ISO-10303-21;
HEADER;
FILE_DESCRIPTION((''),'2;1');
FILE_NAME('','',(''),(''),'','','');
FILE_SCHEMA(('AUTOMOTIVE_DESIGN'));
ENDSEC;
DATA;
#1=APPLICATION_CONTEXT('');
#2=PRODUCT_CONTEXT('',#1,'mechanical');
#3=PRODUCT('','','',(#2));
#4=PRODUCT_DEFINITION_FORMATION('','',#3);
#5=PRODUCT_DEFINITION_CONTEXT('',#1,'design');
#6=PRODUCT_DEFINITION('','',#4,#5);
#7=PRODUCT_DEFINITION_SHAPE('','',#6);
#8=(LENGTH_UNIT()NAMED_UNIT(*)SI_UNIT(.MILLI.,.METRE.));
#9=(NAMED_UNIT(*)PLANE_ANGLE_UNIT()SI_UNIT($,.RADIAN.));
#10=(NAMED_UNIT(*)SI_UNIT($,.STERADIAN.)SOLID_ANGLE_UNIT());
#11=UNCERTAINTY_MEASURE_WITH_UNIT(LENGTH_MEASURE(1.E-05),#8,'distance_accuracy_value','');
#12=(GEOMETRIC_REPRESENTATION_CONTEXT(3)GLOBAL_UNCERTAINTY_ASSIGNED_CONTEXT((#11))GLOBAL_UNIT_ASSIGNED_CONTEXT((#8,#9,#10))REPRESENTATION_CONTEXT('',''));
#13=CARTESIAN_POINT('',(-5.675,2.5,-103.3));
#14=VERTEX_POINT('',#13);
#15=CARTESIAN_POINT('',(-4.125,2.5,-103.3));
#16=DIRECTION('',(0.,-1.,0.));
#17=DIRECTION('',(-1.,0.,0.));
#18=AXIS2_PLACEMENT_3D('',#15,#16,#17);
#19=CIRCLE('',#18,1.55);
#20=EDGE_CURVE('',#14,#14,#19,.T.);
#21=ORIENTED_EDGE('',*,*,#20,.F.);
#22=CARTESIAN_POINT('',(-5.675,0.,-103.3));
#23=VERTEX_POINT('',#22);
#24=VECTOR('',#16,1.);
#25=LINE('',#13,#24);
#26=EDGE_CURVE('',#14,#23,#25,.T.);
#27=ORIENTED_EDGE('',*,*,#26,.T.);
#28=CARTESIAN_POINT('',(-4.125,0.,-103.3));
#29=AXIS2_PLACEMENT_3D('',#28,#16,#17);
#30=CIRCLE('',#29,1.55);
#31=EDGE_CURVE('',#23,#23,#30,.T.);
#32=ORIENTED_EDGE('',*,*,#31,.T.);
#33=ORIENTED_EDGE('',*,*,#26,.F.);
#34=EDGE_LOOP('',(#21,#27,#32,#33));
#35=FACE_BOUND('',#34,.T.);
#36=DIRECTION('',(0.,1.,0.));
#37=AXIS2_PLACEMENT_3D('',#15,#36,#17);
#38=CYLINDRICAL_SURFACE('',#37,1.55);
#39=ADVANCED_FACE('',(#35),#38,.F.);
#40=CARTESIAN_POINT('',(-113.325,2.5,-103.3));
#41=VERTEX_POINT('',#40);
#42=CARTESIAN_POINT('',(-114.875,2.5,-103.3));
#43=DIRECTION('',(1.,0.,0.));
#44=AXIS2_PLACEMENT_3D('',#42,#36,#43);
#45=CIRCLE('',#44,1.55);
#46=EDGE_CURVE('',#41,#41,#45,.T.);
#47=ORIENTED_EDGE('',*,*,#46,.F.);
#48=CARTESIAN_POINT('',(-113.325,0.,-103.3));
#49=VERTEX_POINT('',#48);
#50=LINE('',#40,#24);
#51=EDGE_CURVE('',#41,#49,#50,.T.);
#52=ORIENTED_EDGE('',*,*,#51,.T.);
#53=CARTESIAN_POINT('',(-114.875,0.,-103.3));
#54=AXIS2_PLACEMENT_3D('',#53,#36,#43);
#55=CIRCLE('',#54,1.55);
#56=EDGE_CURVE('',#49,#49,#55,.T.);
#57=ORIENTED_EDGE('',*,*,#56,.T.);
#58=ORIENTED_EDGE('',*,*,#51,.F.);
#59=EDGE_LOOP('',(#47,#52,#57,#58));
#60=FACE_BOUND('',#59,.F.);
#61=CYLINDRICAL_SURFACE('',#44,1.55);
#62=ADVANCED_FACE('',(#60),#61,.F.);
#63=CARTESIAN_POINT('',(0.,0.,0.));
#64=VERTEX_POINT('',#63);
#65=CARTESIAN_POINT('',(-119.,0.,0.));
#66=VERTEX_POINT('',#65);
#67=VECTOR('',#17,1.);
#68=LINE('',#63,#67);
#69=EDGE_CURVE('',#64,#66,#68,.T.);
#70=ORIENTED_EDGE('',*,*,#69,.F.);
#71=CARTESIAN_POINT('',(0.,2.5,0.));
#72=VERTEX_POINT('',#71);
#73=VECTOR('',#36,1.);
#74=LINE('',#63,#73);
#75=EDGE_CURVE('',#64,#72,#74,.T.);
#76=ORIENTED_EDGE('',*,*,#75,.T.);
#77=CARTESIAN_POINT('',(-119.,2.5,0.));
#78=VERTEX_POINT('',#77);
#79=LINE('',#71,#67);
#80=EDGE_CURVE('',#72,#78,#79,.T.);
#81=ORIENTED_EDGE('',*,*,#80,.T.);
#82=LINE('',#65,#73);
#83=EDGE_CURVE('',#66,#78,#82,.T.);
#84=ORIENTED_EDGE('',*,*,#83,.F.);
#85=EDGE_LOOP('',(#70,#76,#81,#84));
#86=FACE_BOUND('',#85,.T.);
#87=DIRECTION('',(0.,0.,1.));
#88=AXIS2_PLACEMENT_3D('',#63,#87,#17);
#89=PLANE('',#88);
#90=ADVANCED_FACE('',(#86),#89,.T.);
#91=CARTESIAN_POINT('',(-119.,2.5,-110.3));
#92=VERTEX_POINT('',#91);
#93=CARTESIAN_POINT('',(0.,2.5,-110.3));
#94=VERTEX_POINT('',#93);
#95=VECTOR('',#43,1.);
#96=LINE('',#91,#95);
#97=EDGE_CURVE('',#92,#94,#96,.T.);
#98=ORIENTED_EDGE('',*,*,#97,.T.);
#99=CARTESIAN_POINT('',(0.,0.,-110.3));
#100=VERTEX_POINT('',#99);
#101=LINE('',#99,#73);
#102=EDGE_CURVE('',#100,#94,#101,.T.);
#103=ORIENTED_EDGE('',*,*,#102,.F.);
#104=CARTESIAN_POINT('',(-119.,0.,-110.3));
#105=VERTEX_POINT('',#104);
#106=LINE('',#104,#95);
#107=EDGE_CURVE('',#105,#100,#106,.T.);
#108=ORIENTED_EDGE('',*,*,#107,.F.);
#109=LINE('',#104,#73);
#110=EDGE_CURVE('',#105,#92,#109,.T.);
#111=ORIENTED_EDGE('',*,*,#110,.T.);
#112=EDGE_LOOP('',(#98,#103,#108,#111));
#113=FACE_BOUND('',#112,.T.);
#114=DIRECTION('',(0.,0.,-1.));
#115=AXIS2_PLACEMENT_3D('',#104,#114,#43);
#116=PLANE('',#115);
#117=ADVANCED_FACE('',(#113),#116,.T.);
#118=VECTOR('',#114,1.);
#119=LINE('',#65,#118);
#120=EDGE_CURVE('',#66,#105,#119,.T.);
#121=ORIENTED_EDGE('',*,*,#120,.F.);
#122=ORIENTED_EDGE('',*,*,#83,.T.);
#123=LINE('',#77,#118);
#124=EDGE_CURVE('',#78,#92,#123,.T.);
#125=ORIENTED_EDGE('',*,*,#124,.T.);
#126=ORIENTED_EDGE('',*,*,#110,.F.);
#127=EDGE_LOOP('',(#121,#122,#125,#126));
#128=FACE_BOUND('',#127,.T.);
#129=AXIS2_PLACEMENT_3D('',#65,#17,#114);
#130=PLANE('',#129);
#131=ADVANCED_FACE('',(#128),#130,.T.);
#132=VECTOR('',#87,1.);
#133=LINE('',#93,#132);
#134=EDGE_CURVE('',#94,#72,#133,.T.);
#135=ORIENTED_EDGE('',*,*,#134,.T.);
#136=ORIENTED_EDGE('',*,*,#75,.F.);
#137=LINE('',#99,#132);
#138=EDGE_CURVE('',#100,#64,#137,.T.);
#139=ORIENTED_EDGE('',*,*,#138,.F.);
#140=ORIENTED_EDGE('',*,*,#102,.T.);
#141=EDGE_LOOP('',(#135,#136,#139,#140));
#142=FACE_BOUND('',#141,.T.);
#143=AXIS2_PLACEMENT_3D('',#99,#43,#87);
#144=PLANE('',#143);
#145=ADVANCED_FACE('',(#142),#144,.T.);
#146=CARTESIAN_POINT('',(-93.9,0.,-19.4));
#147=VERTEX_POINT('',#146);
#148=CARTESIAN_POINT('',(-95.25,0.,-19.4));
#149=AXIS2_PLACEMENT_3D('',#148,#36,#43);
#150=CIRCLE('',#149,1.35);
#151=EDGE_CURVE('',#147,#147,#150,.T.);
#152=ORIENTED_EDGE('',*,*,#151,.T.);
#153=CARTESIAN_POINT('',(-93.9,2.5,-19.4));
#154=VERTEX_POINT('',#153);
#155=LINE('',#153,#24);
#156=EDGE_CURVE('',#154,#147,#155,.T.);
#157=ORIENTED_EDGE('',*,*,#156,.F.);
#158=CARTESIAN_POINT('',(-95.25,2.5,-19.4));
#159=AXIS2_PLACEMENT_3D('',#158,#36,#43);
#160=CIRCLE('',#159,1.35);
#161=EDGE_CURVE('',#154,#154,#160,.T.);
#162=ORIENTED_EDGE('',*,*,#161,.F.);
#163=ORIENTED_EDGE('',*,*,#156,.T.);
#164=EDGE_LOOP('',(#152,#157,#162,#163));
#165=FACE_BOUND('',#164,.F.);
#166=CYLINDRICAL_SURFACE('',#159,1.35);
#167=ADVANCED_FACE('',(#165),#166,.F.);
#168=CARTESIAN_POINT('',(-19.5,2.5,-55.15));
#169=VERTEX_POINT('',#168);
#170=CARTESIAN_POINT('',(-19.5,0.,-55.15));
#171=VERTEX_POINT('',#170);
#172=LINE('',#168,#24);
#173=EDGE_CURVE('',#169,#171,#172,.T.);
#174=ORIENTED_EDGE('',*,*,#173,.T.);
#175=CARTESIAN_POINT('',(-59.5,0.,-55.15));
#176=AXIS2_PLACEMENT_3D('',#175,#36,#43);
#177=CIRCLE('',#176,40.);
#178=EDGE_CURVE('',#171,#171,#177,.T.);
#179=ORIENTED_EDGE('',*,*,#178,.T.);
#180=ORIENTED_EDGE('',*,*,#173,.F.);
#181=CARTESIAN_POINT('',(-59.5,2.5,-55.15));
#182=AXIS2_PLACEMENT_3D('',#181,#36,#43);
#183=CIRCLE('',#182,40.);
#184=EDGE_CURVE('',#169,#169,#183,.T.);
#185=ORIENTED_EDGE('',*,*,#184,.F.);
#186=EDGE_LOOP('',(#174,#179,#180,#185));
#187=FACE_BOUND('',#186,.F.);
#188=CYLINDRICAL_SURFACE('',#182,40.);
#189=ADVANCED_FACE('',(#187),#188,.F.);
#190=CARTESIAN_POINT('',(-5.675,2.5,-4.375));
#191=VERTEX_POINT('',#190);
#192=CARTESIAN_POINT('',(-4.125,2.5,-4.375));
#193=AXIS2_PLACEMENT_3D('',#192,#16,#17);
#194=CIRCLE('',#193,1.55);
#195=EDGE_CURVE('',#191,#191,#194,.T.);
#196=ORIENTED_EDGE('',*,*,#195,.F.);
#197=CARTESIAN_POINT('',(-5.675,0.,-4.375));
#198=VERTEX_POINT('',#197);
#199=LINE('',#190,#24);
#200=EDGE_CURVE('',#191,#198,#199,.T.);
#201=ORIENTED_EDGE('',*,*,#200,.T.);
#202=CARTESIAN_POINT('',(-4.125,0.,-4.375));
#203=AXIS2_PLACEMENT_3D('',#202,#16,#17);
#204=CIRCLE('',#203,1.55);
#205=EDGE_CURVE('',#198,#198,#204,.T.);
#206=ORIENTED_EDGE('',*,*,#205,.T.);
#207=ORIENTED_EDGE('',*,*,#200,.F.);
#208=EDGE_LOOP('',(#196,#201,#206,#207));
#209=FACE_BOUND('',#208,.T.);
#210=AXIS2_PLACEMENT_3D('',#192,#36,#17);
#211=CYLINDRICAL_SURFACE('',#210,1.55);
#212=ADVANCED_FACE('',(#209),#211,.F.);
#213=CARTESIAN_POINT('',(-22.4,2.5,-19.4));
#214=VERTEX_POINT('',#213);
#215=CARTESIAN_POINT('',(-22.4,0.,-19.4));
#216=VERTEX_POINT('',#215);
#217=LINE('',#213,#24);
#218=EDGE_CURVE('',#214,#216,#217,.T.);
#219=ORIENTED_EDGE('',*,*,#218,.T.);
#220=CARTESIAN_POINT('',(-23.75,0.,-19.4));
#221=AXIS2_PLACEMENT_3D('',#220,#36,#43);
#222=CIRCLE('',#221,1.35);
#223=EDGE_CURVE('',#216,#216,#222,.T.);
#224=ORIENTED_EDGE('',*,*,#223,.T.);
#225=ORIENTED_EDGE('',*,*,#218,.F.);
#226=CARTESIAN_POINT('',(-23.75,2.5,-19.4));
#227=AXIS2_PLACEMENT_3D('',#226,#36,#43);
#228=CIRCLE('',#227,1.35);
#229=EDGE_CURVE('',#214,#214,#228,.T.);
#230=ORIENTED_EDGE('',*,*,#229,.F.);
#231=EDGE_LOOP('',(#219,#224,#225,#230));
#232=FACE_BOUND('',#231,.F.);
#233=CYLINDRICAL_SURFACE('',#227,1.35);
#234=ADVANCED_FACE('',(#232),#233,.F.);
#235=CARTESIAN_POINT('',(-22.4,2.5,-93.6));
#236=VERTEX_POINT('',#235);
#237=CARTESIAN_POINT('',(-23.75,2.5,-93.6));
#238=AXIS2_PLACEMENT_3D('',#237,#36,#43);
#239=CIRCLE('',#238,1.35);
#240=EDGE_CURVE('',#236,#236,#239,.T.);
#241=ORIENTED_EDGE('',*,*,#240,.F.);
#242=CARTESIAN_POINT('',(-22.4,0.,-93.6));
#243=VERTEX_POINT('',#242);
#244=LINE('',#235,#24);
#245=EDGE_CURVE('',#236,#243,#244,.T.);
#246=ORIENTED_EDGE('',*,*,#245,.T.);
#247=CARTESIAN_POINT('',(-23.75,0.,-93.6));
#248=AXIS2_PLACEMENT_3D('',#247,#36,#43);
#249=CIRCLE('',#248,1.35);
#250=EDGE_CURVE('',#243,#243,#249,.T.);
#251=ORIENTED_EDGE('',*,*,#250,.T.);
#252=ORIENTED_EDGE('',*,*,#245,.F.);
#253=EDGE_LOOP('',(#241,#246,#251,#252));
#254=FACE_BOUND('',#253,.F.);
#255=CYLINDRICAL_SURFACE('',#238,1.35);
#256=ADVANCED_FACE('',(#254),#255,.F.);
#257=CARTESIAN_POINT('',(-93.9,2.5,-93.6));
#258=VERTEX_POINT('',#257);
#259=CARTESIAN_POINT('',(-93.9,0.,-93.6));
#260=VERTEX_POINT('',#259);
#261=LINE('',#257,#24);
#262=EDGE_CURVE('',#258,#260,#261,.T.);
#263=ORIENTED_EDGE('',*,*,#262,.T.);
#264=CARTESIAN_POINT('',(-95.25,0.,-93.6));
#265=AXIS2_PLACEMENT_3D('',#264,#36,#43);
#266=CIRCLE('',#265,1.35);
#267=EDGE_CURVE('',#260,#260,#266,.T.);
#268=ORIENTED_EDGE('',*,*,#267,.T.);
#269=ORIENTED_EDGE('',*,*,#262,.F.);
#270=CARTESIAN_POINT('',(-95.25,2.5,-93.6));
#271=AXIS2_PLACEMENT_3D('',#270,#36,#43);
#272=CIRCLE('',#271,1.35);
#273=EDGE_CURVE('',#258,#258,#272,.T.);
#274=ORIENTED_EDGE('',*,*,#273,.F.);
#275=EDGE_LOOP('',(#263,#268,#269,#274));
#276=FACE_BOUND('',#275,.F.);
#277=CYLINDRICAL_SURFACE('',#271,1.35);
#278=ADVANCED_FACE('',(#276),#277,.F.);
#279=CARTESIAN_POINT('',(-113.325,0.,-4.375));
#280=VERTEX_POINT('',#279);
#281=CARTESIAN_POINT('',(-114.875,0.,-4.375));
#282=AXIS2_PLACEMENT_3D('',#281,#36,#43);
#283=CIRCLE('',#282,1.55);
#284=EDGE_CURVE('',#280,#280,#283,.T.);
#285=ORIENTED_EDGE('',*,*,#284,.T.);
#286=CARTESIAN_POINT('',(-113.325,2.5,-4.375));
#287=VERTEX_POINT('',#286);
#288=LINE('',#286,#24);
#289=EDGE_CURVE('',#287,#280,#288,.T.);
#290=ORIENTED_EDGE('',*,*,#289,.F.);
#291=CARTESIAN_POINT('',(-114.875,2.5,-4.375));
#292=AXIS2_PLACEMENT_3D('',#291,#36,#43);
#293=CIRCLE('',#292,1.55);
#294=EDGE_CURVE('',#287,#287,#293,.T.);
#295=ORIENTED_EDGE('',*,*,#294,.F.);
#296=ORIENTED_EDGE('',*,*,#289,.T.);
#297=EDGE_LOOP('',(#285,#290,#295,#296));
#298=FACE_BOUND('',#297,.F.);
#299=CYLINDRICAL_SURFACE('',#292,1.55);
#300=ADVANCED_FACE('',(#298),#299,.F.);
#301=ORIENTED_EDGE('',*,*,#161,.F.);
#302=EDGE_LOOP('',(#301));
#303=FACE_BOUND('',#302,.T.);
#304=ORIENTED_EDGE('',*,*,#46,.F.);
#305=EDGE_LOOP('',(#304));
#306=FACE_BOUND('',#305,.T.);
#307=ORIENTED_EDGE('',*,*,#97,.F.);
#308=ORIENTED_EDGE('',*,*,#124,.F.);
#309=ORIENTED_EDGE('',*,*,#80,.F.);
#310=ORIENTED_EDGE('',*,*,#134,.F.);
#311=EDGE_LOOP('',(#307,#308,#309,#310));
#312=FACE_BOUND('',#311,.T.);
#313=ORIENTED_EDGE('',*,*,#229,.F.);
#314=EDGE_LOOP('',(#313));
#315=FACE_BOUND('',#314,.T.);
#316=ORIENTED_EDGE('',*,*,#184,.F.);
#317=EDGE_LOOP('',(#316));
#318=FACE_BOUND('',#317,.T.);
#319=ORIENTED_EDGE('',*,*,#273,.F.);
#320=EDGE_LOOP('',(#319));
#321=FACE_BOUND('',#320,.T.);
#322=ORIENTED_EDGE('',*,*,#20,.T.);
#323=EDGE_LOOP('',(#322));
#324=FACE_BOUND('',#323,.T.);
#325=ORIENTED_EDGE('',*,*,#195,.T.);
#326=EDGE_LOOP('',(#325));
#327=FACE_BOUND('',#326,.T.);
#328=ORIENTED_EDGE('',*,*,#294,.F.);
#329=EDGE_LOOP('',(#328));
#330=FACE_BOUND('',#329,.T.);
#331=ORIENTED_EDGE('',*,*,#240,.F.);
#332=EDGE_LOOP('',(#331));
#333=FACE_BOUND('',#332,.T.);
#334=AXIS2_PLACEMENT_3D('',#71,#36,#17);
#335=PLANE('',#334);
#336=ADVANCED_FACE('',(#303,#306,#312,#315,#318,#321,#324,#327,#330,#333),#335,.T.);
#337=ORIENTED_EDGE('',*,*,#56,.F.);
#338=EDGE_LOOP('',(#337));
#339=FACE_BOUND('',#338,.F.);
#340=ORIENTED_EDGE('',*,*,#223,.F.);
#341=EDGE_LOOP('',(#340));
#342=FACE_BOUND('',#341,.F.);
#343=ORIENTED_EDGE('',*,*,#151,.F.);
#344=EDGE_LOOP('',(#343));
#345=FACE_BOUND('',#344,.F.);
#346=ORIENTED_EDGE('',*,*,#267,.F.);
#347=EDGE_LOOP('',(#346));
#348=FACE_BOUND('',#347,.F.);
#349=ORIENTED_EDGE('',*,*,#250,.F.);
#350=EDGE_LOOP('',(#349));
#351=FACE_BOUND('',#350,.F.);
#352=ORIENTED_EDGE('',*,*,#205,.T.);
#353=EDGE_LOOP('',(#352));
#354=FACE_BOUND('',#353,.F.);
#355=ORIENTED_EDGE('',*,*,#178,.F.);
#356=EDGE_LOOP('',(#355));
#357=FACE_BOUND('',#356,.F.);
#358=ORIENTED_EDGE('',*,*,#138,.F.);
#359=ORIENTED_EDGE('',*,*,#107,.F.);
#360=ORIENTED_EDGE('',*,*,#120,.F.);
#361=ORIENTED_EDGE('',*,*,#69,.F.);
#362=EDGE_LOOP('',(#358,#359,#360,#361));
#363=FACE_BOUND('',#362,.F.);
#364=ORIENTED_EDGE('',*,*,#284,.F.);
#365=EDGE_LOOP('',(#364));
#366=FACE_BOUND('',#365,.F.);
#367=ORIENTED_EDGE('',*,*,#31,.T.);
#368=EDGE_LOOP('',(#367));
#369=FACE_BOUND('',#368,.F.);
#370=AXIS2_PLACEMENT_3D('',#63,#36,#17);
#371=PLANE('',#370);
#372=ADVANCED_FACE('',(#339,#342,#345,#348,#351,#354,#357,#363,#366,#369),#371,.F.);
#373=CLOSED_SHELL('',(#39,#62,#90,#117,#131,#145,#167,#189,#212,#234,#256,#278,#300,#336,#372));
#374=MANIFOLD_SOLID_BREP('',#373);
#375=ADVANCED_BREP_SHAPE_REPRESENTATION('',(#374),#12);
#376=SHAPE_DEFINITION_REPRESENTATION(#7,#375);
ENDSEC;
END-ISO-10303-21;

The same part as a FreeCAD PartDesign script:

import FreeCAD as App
import Part
import Sketcher

V = App.Vector
Q = App.Units.Quantity

doc = App.newDocument("Part")
params = doc.addObject("Spreadsheet::Sheet", "Params")
for row, (alias, value) in enumerate([
    ("sketch1_width", "119 mm"),
    ("sketch1_height", "110.3 mm"),
    ("pad1_length", "2.5 mm"),
    ("sketch2_diameter", "3.1 mm"),
    ("pocket1_length", "2.5 mm"),
    ("sketch3_diameter", "2.7 mm"),
    ("sketch3_diameter2", "80 mm"),
    ("pocket2_length", "2.5 mm"),
], start=1):
    params.set(f"A{row}", alias)
    params.set(f"B{row}", "=" + value)
    params.setAlias(f"B{row}", alias)

body = doc.addObject("PartDesign::Body", "Body")

# Sketch on XZ plane
sketch1 = body.newObject("Sketcher::SketchObject", "Sketch")
sketch1.AttachmentSupport = (doc.getObject("XZ_Plane"), [""])
sketch1.MapMode = "FlatFace"
sketch1.addGeometry(Part.LineSegment(V(-119, 0, 0), V(0, 0, 0)), False)
sketch1.addGeometry(Part.LineSegment(V(0, 0, 0), V(0, -110, 0)), False)
sketch1.addGeometry(Part.LineSegment(V(0, -110, 0), V(-119, -110, 0)), False)
sketch1.addGeometry(Part.LineSegment(V(-119, -110, 0), V(-119, 0, 0)), False)
sketch1.addConstraint(Sketcher.Constraint("Coincident", 0, 2, 1, 1))
sketch1.addConstraint(Sketcher.Constraint("Coincident", 1, 2, 2, 1))
sketch1.addConstraint(Sketcher.Constraint("Coincident", 2, 2, 3, 1))
sketch1.addConstraint(Sketcher.Constraint("Coincident", 3, 2, 0, 1))
sketch1.addConstraint(Sketcher.Constraint("Horizontal", 0))
sketch1.addConstraint(Sketcher.Constraint("Vertical", 1))
sketch1.addConstraint(Sketcher.Constraint("Horizontal", 2))
sketch1.addConstraint(Sketcher.Constraint("Vertical", 3))
sketch1.addConstraint(Sketcher.Constraint("Coincident", 0, 2, -1, 1))
sketch1.addConstraint(Sketcher.Constraint("DistanceX", 0, 1, 0, 2, Q("119 mm")))
sketch1.addConstraint(Sketcher.Constraint("DistanceY", 1, 2, 1, 1, Q("110.3 mm")))
sketch1.setExpression("Constraints[9]", "Params.sketch1_width")
sketch1.setExpression("Constraints[10]", "Params.sketch1_height")
pad1 = body.newObject("PartDesign::Pad", "Pad")
pad1.Profile = sketch1
pad1.setExpression("Length", "Params.pad1_length")
pad1.Reversed = True

# Sketch on XZ plane
sketch2 = body.newObject("Sketcher::SketchObject", "Sketch001")
sketch2.AttachmentSupport = (doc.getObject("XZ_Plane"), [""])
sketch2.MapMode = "FlatFace"
sketch2.AttachmentOffset = App.Placement(V(0, 0, -2.5), App.Rotation())
sketch2.addGeometry(Part.Circle(V(-114.9, -4.4, 0), V(0, 0, 1), 1.6), False)
sketch2.addGeometry(Part.Circle(V(-114.9, -103.3, 0), V(0, 0, 1), 1.6), False)
sketch2.addConstraint(Sketcher.Constraint("Equal", 0, 1))
sketch2.addConstraint(Sketcher.Constraint("Vertical", 0, 3, 1, 3))
sketch2.addConstraint(Sketcher.Constraint("Diameter", 0, Q("3.1 mm")))
sketch2.addConstraint(Sketcher.Constraint("DistanceY", 0, 3, -1, 1, Q("4.375 mm")))
sketch2.addConstraint(Sketcher.Constraint("DistanceY", 1, 3, -1, 1, Q("103.3 mm")))
sketch2.addConstraint(Sketcher.Constraint("DistanceX", 0, 3, -1, 1, Q("114.875 mm")))
sketch2.setExpression("Constraints[2]", "Params.sketch2_diameter")
pocket1 = body.newObject("PartDesign::Pocket", "Pocket")
pocket1.Profile = sketch2
pocket1.setExpression("Length", "Params.pocket1_length")
pocket1.Reversed = True
doc.recompute()

datumplane = body.newObject("PartDesign::Plane", "DatumPlane")
datumplane.AttachmentSupport = (doc.getObject("YZ_Plane"), [""])
datumplane.MapMode = "FlatFace"
datumplane.AttachmentOffset = App.Placement(V(0, 0, -59.5), App.Rotation())
mirrored = body.newObject("PartDesign::Mirrored", "Mirrored")
mirrored.Originals = [pocket1]
mirrored.MirrorPlane = (datumplane, [""])
body.Tip = mirrored

# Sketch on XZ plane
sketch3 = body.newObject("Sketcher::SketchObject", "Sketch002")
sketch3.AttachmentSupport = (doc.getObject("XZ_Plane"), [""])
sketch3.MapMode = "FlatFace"
sketch3.AttachmentOffset = App.Placement(V(0, 0, -2.5), App.Rotation())
sketch3.addGeometry(Part.Circle(V(-59.5, -55.1, 0), V(0, 0, 1), 40), False)
sketch3.addGeometry(Part.Circle(V(-23.8, -19.4, 0), V(0, 0, 1), 1.4), False)
sketch3.addGeometry(Part.Circle(V(-95.2, -19.4, 0), V(0, 0, 1), 1.4), False)
sketch3.addGeometry(Part.Circle(V(-95.2, -93.6, 0), V(0, 0, 1), 1.4), False)
sketch3.addGeometry(Part.Circle(V(-23.8, -93.6, 0), V(0, 0, 1), 1.4), False)
sketch3.addConstraint(Sketcher.Constraint("Equal", 1, 2))
sketch3.addConstraint(Sketcher.Constraint("Equal", 2, 3))
sketch3.addConstraint(Sketcher.Constraint("Equal", 3, 4))
sketch3.addConstraint(Sketcher.Constraint("Horizontal", 1, 3, 2, 3))
sketch3.addConstraint(Sketcher.Constraint("Horizontal", 3, 3, 4, 3))
sketch3.addConstraint(Sketcher.Constraint("Vertical", 2, 3, 3, 3))
sketch3.addConstraint(Sketcher.Constraint("Vertical", 1, 3, 4, 3))
sketch3.addConstraint(Sketcher.Constraint("Diameter", 1, Q("2.7 mm")))
sketch3.addConstraint(Sketcher.Constraint("Diameter", 0, Q("80 mm")))
sketch3.addConstraint(Sketcher.Constraint("DistanceX", 2, 3, 1, 3, Q("71.5 mm")))
sketch3.addConstraint(Sketcher.Constraint("DistanceX", 0, 3, 1, 3, Q("35.75 mm")))
sketch3.addConstraint(Sketcher.Constraint("DistanceY", 0, 3, 1, 3, Q("35.75 mm")))
sketch3.addConstraint(Sketcher.Constraint("DistanceX", 0, 3, -1, 1, Q("59.5 mm")))
sketch3.addConstraint(Sketcher.Constraint("DistanceY", 1, 3, -1, 1, Q("19.4 mm")))
sketch3.addConstraint(Sketcher.Constraint("DistanceY", 3, 3, -1, 1, Q("93.6 mm")))
sketch3.setExpression("Constraints[7]", "Params.sketch3_diameter")
sketch3.setExpression("Constraints[8]", "Params.sketch3_diameter2")
pocket2 = body.newObject("PartDesign::Pocket", "Pocket001")
pocket2.Profile = sketch3
pocket2.setExpression("Length", "Params.pocket2_length")
pocket2.Reversed = True

doc.recompute()
